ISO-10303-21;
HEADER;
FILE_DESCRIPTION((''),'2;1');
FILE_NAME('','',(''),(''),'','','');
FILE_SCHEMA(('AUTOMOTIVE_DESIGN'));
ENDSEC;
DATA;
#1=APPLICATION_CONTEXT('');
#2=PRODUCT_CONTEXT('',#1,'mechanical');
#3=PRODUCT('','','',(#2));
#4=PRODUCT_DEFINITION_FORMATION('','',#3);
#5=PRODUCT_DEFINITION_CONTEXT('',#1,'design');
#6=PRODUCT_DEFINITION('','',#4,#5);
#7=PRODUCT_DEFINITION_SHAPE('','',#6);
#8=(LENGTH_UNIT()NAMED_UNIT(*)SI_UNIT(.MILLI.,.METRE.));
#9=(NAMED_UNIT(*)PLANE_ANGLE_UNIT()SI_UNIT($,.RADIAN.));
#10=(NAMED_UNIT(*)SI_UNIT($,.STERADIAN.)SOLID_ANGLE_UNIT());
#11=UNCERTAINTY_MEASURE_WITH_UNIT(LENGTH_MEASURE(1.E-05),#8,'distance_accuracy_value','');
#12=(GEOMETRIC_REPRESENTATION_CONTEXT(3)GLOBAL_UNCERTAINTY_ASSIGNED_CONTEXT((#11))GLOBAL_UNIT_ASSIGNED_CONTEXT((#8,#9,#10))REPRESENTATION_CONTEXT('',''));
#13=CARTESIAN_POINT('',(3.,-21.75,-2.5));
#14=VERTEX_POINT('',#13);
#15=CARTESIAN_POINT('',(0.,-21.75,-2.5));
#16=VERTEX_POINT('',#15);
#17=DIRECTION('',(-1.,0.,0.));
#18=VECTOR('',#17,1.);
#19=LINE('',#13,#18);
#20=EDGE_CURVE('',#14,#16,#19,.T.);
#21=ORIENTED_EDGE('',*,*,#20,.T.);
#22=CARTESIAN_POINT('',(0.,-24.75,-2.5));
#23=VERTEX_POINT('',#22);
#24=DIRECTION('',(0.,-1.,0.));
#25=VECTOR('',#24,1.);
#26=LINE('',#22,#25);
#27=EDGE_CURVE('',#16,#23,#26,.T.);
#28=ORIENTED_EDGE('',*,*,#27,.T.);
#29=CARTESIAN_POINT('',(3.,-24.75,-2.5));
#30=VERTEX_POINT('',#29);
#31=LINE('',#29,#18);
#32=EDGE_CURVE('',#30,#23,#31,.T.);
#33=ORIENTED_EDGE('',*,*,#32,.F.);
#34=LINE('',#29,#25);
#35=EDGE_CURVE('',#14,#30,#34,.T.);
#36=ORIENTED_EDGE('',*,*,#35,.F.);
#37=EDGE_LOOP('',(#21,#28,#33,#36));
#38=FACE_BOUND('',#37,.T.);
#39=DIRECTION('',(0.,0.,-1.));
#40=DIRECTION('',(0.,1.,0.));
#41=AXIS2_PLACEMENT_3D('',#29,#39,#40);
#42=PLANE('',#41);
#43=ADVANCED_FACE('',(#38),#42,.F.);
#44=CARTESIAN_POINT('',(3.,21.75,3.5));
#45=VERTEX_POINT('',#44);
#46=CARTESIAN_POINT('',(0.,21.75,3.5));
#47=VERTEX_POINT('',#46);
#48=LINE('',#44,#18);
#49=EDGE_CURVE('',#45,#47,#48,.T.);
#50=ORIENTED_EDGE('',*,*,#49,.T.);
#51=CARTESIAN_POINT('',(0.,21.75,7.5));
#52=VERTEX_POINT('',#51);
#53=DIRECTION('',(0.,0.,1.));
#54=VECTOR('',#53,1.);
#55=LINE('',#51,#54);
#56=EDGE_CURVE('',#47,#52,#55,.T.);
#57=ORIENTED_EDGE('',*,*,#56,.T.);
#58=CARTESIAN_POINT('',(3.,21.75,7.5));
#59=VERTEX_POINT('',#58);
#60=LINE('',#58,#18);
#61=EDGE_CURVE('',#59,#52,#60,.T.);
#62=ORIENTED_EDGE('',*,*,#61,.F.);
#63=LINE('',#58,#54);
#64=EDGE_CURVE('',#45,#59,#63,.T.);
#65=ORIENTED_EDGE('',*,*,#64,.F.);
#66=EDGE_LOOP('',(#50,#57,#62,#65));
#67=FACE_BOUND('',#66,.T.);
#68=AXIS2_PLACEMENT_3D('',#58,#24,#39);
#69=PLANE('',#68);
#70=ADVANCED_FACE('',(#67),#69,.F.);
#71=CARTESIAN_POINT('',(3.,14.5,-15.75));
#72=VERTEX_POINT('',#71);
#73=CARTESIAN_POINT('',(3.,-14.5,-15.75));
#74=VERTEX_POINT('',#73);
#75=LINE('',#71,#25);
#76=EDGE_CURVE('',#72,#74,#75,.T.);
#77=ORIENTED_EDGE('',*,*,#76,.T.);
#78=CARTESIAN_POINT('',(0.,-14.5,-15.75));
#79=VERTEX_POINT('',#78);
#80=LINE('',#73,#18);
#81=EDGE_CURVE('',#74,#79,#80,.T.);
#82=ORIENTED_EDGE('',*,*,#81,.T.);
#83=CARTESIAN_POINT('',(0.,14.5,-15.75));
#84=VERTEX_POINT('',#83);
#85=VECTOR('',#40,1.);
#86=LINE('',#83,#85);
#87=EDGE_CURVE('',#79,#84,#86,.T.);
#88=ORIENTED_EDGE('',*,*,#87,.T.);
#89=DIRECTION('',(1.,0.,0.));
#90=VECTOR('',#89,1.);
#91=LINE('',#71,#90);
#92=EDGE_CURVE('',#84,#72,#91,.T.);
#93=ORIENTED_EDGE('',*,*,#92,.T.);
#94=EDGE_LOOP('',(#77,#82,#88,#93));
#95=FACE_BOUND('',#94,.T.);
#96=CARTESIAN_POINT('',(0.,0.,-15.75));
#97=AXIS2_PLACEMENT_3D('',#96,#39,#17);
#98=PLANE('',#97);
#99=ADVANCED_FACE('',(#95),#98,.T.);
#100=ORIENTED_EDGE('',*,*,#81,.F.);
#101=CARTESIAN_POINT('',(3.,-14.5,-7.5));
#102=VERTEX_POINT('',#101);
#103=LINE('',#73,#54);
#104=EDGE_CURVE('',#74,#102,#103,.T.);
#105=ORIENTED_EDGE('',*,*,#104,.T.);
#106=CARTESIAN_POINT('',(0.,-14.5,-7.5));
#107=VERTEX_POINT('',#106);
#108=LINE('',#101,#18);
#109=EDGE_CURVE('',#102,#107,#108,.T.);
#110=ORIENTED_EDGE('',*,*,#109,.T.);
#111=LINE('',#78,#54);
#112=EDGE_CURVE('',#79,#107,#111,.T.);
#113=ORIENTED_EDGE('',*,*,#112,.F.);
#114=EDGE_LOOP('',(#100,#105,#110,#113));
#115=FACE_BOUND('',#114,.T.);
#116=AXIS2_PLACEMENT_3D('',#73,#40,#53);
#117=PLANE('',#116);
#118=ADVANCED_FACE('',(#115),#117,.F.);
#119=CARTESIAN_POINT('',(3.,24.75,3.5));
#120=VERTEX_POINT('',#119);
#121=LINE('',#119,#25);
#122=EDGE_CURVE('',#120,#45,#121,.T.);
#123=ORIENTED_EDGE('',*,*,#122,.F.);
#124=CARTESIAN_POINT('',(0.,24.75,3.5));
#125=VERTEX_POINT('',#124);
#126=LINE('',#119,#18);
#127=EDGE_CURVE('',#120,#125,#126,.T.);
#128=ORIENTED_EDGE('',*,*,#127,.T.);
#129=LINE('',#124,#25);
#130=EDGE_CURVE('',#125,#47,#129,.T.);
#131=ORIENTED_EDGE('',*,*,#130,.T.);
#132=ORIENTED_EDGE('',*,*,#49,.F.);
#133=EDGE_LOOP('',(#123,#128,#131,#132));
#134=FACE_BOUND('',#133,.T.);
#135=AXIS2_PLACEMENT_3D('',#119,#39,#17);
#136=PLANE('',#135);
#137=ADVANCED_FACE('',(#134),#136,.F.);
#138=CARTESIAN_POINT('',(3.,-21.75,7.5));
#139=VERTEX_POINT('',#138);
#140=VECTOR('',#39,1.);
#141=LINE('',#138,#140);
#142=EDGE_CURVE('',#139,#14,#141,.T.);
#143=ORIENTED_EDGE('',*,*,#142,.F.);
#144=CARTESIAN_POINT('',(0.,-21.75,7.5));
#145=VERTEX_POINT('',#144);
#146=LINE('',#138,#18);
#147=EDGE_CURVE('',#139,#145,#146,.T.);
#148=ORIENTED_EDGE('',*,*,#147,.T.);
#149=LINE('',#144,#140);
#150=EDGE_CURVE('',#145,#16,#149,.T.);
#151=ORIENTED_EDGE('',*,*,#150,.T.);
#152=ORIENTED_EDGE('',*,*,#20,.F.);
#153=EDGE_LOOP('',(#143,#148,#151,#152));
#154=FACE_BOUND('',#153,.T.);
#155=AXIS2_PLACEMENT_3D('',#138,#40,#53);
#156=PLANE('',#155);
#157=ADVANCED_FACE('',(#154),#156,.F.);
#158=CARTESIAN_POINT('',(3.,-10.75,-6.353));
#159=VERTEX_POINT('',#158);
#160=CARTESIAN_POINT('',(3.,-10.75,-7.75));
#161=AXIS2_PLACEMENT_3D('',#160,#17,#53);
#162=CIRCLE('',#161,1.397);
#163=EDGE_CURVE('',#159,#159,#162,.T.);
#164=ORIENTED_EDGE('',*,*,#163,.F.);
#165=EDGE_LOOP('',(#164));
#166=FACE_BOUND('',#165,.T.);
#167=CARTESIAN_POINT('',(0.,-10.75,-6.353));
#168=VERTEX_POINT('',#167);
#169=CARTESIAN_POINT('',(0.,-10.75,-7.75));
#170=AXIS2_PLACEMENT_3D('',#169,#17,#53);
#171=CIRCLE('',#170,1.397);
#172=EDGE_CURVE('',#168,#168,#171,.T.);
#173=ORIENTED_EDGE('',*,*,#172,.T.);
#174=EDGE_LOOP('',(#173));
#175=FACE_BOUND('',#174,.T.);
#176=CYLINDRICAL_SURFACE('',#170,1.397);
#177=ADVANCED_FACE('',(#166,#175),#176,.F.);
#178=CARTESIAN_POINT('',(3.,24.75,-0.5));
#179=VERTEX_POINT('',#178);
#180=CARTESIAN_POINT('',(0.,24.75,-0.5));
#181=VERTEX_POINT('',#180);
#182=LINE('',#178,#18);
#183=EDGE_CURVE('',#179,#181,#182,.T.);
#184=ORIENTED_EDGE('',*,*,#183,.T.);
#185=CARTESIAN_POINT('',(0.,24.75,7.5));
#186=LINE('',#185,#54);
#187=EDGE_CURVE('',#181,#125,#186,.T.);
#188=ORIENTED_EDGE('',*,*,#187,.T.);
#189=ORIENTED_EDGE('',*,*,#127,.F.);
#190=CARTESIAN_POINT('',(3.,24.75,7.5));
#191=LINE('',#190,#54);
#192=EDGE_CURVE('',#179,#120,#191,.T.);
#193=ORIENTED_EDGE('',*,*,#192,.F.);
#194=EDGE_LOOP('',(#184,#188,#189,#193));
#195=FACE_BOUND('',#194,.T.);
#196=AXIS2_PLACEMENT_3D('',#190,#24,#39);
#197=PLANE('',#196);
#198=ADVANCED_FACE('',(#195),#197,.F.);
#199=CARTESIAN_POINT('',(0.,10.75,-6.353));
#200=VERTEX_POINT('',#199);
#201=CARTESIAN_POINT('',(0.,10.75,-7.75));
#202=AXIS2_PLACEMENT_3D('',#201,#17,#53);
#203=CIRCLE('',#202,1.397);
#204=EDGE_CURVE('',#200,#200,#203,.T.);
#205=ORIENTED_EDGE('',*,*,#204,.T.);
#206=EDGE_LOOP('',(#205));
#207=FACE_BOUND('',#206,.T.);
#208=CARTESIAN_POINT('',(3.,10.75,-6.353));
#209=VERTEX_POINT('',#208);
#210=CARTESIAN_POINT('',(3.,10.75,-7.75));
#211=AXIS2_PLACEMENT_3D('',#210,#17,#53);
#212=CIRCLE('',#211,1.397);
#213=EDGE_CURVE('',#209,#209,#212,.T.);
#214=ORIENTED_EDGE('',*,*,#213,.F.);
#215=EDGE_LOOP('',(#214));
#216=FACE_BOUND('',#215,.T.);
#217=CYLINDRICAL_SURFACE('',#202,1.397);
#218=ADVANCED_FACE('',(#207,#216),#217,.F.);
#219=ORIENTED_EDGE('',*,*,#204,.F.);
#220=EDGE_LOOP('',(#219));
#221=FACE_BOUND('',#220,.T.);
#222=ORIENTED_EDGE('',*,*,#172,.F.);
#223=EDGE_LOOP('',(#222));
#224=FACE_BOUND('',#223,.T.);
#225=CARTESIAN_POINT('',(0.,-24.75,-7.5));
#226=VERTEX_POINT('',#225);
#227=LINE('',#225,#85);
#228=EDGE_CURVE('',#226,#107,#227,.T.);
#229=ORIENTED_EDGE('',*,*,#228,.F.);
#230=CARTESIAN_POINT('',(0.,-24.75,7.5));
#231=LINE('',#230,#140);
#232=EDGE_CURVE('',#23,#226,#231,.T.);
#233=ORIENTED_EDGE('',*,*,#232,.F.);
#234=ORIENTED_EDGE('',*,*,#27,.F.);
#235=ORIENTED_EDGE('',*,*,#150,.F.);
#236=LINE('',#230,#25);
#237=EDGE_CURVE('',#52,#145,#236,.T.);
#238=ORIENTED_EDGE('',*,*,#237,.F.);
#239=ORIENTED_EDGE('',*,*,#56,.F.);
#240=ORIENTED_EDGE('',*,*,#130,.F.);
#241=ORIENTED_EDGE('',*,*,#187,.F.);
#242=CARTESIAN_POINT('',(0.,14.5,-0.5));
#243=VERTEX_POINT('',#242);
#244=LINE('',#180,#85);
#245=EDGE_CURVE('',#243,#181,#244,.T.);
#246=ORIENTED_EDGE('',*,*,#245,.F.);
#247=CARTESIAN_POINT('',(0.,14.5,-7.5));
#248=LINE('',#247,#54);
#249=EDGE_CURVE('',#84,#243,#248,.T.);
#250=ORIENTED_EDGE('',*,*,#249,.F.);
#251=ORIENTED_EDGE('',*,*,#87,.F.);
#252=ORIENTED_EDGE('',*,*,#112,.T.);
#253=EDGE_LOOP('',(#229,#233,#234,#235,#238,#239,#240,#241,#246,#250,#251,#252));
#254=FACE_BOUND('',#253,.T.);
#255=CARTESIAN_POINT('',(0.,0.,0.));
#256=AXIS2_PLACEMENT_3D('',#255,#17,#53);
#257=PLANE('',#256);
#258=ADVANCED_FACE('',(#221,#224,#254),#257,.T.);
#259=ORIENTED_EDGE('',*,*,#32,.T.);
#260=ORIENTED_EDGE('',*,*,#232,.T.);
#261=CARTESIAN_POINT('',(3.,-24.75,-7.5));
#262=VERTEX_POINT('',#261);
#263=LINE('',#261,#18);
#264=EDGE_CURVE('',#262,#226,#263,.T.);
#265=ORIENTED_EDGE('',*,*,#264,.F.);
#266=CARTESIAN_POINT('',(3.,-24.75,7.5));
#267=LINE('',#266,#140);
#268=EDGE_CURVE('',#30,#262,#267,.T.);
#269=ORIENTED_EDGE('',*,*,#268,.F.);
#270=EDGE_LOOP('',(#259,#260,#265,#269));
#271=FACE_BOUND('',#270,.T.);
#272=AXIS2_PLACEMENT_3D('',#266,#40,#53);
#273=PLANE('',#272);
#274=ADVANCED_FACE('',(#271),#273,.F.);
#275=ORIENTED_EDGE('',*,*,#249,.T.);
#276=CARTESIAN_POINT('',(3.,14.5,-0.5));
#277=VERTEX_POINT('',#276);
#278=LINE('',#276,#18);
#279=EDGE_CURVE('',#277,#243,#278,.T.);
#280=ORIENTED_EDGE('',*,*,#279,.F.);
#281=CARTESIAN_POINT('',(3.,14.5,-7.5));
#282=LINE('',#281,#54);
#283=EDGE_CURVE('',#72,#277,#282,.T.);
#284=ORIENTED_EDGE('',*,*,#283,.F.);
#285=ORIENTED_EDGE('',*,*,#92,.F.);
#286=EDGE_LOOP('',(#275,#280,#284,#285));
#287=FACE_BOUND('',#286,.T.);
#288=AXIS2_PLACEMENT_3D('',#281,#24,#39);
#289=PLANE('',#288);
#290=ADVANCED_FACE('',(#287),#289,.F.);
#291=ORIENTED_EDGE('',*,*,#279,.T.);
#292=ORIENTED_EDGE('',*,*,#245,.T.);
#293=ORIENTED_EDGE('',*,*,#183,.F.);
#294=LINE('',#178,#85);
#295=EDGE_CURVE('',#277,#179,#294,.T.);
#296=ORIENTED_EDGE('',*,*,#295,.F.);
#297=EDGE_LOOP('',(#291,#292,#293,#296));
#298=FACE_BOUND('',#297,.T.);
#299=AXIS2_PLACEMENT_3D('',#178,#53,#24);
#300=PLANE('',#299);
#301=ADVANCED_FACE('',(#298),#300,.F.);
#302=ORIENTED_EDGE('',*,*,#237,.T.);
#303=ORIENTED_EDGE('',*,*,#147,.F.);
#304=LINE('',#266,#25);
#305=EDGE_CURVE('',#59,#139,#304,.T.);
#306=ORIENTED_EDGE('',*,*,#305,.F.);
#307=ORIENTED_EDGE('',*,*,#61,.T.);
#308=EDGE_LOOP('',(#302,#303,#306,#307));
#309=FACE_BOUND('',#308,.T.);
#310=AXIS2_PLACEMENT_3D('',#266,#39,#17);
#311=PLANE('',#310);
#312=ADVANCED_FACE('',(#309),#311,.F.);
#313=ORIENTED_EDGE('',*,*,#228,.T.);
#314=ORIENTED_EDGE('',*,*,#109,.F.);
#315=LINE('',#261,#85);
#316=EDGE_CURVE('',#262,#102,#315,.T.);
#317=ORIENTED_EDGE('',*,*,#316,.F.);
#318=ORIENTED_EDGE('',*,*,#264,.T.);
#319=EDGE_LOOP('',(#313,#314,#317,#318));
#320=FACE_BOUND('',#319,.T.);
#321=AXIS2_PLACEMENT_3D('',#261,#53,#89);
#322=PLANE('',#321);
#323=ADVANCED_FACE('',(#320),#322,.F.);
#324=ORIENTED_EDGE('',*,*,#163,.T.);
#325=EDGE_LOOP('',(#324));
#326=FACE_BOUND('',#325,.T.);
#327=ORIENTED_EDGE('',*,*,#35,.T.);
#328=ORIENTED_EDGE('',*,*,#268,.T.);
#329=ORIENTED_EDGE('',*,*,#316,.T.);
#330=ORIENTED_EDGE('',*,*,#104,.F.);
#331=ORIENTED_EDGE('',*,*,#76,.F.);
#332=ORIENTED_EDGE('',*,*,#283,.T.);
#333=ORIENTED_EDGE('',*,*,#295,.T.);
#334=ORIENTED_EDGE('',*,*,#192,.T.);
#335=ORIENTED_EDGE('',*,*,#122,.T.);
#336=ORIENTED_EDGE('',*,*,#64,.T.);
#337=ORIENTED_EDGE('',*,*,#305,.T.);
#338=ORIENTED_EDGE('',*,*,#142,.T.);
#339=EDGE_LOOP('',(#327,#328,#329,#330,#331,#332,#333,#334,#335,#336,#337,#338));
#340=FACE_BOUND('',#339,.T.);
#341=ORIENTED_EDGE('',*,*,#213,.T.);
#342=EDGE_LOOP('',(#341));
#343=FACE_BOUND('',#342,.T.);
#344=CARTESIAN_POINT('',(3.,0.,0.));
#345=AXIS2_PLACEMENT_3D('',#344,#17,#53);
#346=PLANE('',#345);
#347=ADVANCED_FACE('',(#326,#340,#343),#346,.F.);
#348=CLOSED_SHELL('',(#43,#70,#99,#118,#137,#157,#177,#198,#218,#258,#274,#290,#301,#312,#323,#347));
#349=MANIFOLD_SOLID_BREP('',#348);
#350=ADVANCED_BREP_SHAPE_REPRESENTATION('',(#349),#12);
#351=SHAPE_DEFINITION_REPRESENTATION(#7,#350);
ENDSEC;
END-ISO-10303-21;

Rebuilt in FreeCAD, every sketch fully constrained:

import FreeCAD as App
import Part
import Sketcher

V = App.Vector
Q = App.Units.Quantity


def add_polygon(sketch, points):
    """Adds a closed chain of lines whose ends are joined by coincident constraints."""
    first, n = sketch.GeometryCount, len(points)
    for a, b in zip(points, points[1:] + points[:1]):
        sketch.addGeometry(Part.LineSegment(App.Vector(*a, 0), App.Vector(*b, 0)), False)
    for i in range(n):
        sketch.addConstraint(Sketcher.Constraint("Coincident", first + i, 2, first + (i + 1) % n, 1))

doc = App.newDocument("Part")
params = doc.addObject("Spreadsheet::Sheet", "Params")
for row, (alias, value) in enumerate([
    ("sketch1_height", "15 mm"),
    ("sketch1_width", "49.5 mm"),
    ("pad1_length", "3 mm"),
    ("sketch2_width", "3 mm"),
    ("sketch2_height", "10 mm"),
    ("sketch2_height2", "7 mm"),
    ("sketch2_height3", "4 mm"),
    ("sketch2_width2", "10.25 mm"),
    ("sketch3_width", "3 mm"),
    ("sketch3_height", "29 mm"),
    ("pad2_length", "8.25 mm"),
    ("hole_diameter", "2.794 mm"),
], start=1):
    params.set(f"A{row}", alias)
    params.set(f"B{row}", "=" + value)
    params.setAlias(f"B{row}", alias)

body = doc.addObject("PartDesign::Body", "Body")

# Sketch on YZ plane
sketch1 = doc.addObject("Sketcher::SketchObject", "Sketch")
body.addObject(sketch1)
sketch1.AttachmentSupport = (doc.YZ_Plane, [""])
sketch1.MapMode = "FlatFace"
add_polygon(sketch1, [(25, 8), (-25, 8), (-25, -8), (25, -8)])  # lines 0-3
sketch1.addConstraint(Sketcher.Constraint("Horizontal", 0))
sketch1.addConstraint(Sketcher.Constraint("Vertical", 1))
sketch1.addConstraint(Sketcher.Constraint("Horizontal", 2))
sketch1.addConstraint(Sketcher.Constraint("Vertical", 3))
sketch1.addConstraint(Sketcher.Constraint("Symmetric", 0, 2, 2, 2, -1, 1))
sketch1.addConstraint(Sketcher.Constraint("DistanceY", 1, 2, 1, 1, Q("15 mm")))
sketch1.addConstraint(Sketcher.Constraint("DistanceX", 0, 2, 0, 1, Q("49.5 mm")))
sketch1.setExpression("Constraints[9]", "Params.sketch1_height")
sketch1.setExpression("Constraints[10]", "Params.sketch1_width")
pad1 = doc.addObject("PartDesign::Pad", "Pad")
body.addObject(pad1)
pad1.Profile = sketch1
pad1.setExpression("Length", "Params.pad1_length")

# Sketch on YZ plane
sketch2 = doc.addObject("Sketcher::SketchObject", "Sketch001")
body.addObject(sketch2)
sketch2.AttachmentSupport = (doc.YZ_Plane, [""])
sketch2.MapMode = "FlatFace"
add_polygon(sketch2, [(-21.8, -2.5), (-24.8, -2.5), (-24.8, 7.5), (-21.8, 7.5)])  # lines 0-3
add_polygon(sketch2, [(24.8, -7.5), (14.5, -7.5), (14.5, -0.5), (24.8, -0.5)])  # lines 4-7
add_polygon(sketch2, [(24.8, 3.5), (21.8, 3.5), (21.8, 7.5), (24.8, 7.5)])  # lines 8-11
sketch2.addConstraint(Sketcher.Constraint("Horizontal", 0))
sketch2.addConstraint(Sketcher.Constraint("Vertical", 1))
sketch2.addConstraint(Sketcher.Constraint("Horizontal", 2))
sketch2.addConstraint(Sketcher.Constraint("Vertical", 3))
sketch2.addConstraint(Sketcher.Constraint("Horizontal", 4))
sketch2.addConstraint(Sketcher.Constraint("Vertical", 5))
sketch2.addConstraint(Sketcher.Constraint("Horizontal", 6))
sketch2.addConstraint(Sketcher.Constraint("Vertical", 7))
sketch2.addConstraint(Sketcher.Constraint("Horizontal", 8))
sketch2.addConstraint(Sketcher.Constraint("Vertical", 9))
sketch2.addConstraint(Sketcher.Constraint("Horizontal", 10))
sketch2.addConstraint(Sketcher.Constraint("Vertical", 11))
sketch2.addConstraint(Sketcher.Constraint("Symmetric", 1, 2, 7, 2, -1, 1))
sketch2.addConstraint(Sketcher.Constraint("Symmetric", 2, 2, 9, 2, -2))
sketch2.addConstraint(Sketcher.Constraint("Vertical", 7, 2, 10, 2))
sketch2.addConstraint(Sketcher.Constraint("DistanceX", 0, 2, 0, 1, Q("3 mm")))
sketch2.addConstraint(Sketcher.Constraint("DistanceY", 1, 1, 1, 2, Q("10 mm")))
sketch2.addConstraint(Sketcher.Constraint("DistanceY", 5, 1, 5, 2, Q("7 mm")))
sketch2.addConstraint(Sketcher.Constraint("DistanceY", 9, 1, 9, 2, Q("4 mm")))
sketch2.addConstraint(Sketcher.Constraint("DistanceY", 4, 2, 3, 2, Q("5 mm")))
sketch2.addConstraint(Sketcher.Constraint("DistanceX", 4, 2, 4, 1, Q("10.25 mm")))
sketch2.addConstraint(Sketcher.Constraint("DistanceX", -1, 1, 4, 2, Q("14.5 mm")))
sketch2.setExpression("Constraints[27]", "Params.sketch2_width")
sketch2.setExpression("Constraints[28]", "Params.sketch2_height")
sketch2.setExpression("Constraints[29]", "Params.sketch2_height2")
sketch2.setExpression("Constraints[30]", "Params.sketch2_height3")
sketch2.setExpression("Constraints[32]", "Params.sketch2_width2")
pocket1 = doc.addObject("PartDesign::Pocket", "Pocket")
body.addObject(pocket1)
pocket1.Profile = sketch2
pocket1.Type = "ThroughAll"
pocket1.Reversed = True

# Sketch on XY plane
sketch3 = doc.addObject("Sketcher::SketchObject", "Sketch002")
body.addObject(sketch3)
sketch3.AttachmentSupport = (doc.XY_Plane, [""])
sketch3.MapMode = "FlatFace"
sketch3.AttachmentOffset = App.Placement(V(0, 0, -7.5), App.Rotation())
add_polygon(sketch3, [(3, 14.5), (3, -14.5), (0, -14.5), (0, 14.5)])  # lines 0-3
sketch3.addConstraint(Sketcher.Constraint("Vertical", 0))
sketch3.addConstraint(Sketcher.Constraint("Horizontal", 1))
sketch3.addConstraint(Sketcher.Constraint("Vertical", 2))
sketch3.addConstraint(Sketcher.Constraint("Horizontal", 3))
sketch3.addConstraint(Sketcher.Constraint("Symmetric", 1, 2, 2, 2, -1, 1))
sketch3.addConstraint(Sketcher.Constraint("DistanceX", 1, 2, 1, 1, Q("3 mm")))
sketch3.addConstraint(Sketcher.Constraint("DistanceY", 0, 2, 0, 1, Q("29 mm")))
sketch3.setExpression("Constraints[9]", "Params.sketch3_width")
sketch3.setExpression("Constraints[10]", "Params.sketch3_height")
pad2 = doc.addObject("PartDesign::Pad", "Pad001")
body.addObject(pad2)
pad2.Profile = sketch3
pad2.setExpression("Length", "Params.pad2_length")
pad2.Reversed = True

# Sketch on YZ plane
sketch4 = doc.addObject("Sketcher::SketchObject", "Sketch003")
body.addObject(sketch4)
sketch4.AttachmentSupport = (doc.YZ_Plane, [""])
sketch4.MapMode = "FlatFace"
sketch4.addGeometry(Part.Circle(V(10.8, -7.8, 0), V(0, 0, 1), 1.4), False)
sketch4.addGeometry(Part.Circle(V(-10.8, -7.8, 0), V(0, 0, 1), 1.4), False)
sketch4.addConstraint(Sketcher.Constraint("Equal", 0, 1))
sketch4.addConstraint(Sketcher.Constraint("Symmetric", 0, 3, 1, 3, -2))
sketch4.addConstraint(Sketcher.Constraint("Diameter", 0, Q("2.794 mm")))
sketch4.addConstraint(Sketcher.Constraint("DistanceX", 1, 3, 0, 3, Q("21.5 mm")))
sketch4.addConstraint(Sketcher.Constraint("DistanceY", 0, 3, -1, 1, Q("7.75 mm")))
doc.recompute()
hole = doc.addObject("PartDesign::Hole", "Hole")
body.addObject(hole)
hole.Profile = sketch4
hole.ThreadType = "None"
hole.setExpression("Diameter", "Params.hole_diameter")
hole.DepthType = "ThroughAll"
hole.Reversed = True

doc.recompute()
